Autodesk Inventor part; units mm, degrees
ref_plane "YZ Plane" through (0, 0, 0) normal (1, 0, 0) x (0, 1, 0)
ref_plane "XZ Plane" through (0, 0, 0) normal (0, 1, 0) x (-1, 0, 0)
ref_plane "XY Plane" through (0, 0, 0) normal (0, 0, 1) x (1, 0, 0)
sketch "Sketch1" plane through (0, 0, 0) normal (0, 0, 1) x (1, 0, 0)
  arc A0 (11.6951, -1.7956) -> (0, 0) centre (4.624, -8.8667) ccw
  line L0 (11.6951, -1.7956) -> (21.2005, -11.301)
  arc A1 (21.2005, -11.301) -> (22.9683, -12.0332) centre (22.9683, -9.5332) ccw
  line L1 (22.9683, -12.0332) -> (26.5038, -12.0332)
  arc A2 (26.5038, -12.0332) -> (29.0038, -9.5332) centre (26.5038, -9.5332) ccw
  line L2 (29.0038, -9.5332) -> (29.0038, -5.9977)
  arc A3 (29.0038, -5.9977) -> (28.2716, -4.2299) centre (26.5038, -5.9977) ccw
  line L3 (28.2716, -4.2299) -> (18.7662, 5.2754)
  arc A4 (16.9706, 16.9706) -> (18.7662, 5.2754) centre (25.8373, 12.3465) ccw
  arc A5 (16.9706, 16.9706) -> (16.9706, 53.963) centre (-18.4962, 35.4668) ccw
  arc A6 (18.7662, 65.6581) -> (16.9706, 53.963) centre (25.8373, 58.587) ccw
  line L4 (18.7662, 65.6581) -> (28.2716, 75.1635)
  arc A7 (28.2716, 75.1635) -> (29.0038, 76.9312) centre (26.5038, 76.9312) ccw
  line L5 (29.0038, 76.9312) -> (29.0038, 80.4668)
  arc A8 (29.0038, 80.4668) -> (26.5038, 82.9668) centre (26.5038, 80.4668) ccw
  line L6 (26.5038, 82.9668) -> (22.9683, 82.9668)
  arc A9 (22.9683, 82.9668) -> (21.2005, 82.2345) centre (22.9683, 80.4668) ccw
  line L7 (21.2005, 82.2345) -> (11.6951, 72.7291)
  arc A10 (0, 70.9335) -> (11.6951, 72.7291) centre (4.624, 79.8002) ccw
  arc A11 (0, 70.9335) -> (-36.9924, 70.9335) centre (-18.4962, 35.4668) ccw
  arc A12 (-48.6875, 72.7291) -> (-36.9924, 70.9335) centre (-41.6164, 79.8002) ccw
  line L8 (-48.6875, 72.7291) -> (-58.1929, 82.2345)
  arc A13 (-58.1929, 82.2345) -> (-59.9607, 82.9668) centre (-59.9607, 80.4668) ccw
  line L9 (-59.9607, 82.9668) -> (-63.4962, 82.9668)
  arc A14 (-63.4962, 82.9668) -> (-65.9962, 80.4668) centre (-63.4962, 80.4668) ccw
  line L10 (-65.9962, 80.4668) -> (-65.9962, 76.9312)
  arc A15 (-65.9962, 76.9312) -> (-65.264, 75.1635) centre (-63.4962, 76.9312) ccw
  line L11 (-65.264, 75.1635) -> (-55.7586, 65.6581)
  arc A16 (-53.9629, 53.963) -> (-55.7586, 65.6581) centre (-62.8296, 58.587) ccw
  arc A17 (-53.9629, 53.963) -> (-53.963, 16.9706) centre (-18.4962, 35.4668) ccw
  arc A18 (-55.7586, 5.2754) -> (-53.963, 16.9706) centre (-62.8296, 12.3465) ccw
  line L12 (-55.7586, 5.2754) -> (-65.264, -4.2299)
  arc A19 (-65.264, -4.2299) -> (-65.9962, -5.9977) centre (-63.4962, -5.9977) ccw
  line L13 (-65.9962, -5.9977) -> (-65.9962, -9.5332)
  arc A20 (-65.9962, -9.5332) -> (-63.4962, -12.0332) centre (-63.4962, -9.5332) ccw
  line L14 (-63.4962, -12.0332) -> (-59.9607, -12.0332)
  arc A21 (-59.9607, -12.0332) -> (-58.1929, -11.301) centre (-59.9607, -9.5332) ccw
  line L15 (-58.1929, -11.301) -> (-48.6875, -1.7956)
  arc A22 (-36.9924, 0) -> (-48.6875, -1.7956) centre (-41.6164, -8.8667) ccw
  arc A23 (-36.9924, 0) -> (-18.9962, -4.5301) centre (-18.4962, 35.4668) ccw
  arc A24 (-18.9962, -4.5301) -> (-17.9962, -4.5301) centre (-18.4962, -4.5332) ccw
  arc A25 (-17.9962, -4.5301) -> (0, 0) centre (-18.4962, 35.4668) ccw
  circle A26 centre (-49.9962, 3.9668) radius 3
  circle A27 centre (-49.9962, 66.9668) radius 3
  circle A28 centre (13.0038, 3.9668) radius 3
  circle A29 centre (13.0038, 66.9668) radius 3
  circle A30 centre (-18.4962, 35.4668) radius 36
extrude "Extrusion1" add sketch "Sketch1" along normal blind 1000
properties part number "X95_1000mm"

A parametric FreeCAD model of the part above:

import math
import FreeCAD as App
import Part
import Sketcher

V = App.Vector

doc = App.newDocument("Part")
body = doc.addObject("PartDesign::Body", "Body")

# Sketch on XY plane
sketch1 = body.newObject("Sketcher::SketchObject", "Sketch")
sketch1.AttachmentSupport = (doc.getObject("XY_Plane"), [""])
sketch1.MapMode = "FlatFace"
sketch1.addGeometry([
    Part.ArcOfCircle(Part.Circle(V(4.624, -8.8667, 0), V(0, 0, 1), 10.000046), math.radians(45), math.radians(117.542122)),  # 0
    Part.LineSegment(V(11.6951, -1.7956, 0), V(21.2005, -11.301, 0)),  # 1
    Part.ArcOfCircle(Part.Circle(V(22.9683, -9.5332, 0), V(0, 0, 1), 2.500047), math.radians(-135), math.radians(-90)),  # 2
    Part.LineSegment(V(22.9683, -12.0332, 0), V(26.5038, -12.0332, 0)),  # 3
    Part.ArcOfCircle(Part.Circle(V(26.5038, -9.5332, 0), V(0, 0, 1), 2.5), math.radians(-90), math.radians(0)),  # 4
    Part.LineSegment(V(29.0038, -9.5332, 0), V(29.0038, -5.9977, 0)),  # 5
    Part.ArcOfCircle(Part.Circle(V(26.5038, -5.9977, 0), V(0, 0, 1), 2.5), math.radians(0), math.radians(45)),  # 6
    Part.LineSegment(V(28.2716, -4.2299, 0), V(18.7662, 5.2754, 0)),  # 7
    Part.ArcOfCircle(Part.Circle(V(25.8373, 12.3465, 0), V(0, 0, 1), 10.000033), math.radians(152.45737), math.radians(225)),  # 8
    Part.ArcOfCircle(Part.Circle(V(-18.4962, 35.4668, 0), V(0, 0, 1), 40.000041), math.radians(-27.542376), math.radians(27.542376)),  # 9
    Part.ArcOfCircle(Part.Circle(V(25.8373, 58.587, 0), V(0, 0, 1), 10.000046), math.radians(135), math.radians(207.542122)),  # 10
    Part.LineSegment(V(18.7662, 65.6581, 0), V(28.2716, 75.1635, 0)),  # 11
    Part.ArcOfCircle(Part.Circle(V(26.5038, 76.9312, 0), V(0, 0, 1), 2.499976), math.radians(-44.998379), math.radians(0)),  # 12
    Part.LineSegment(V(29.0038, 76.9312, 0), V(29.0038, 80.4668, 0)),  # 13
    Part.ArcOfCircle(Part.Circle(V(26.5038, 80.4668, 0), V(0, 0, 1), 2.5), math.radians(0), math.radians(90)),  # 14
    Part.LineSegment(V(26.5038, 82.9668, 0), V(22.9683, 82.9668, 0)),  # 15
    Part.ArcOfCircle(Part.Circle(V(22.9683, 80.4668, 0), V(0, 0, 1), 2.5), math.radians(90), math.radians(135.001621)),  # 16
    Part.LineSegment(V(21.2005, 82.2345, 0), V(11.6951, 72.7291, 0)),  # 17
    Part.ArcOfCircle(Part.Circle(V(4.624, 79.8002, 0), V(0, 0, 1), 9.999987), math.radians(-117.542122), math.radians(-45)),  # 18
    Part.ArcOfCircle(Part.Circle(V(-18.4962, 35.4668, 0), V(0, 0, 1), 39.999953), math.radians(62.457558), math.radians(117.542442)),  # 19
    Part.ArcOfCircle(Part.Circle(V(-41.6164, 79.8002, 0), V(0, 0, 1), 10.000046), math.radians(-135), math.radians(-62.457878)),  # 20
    Part.LineSegment(V(-48.6875, 72.7291, 0), V(-58.1929, 82.2345, 0)),  # 21
    Part.ArcOfCircle(Part.Circle(V(-59.9607, 80.4668, 0), V(0, 0, 1), 2.499976), math.radians(44.998379), math.radians(90)),  # 22
    Part.LineSegment(V(-59.9607, 82.9668, 0), V(-63.4962, 82.9668, 0)),  # 23
    Part.ArcOfCircle(Part.Circle(V(-63.4962, 80.4668, 0), V(0, 0, 1), 2.5), math.radians(90), math.radians(180)),  # 24
    Part.LineSegment(V(-65.9962, 80.4668, 0), V(-65.9962, 76.9312, 0)),  # 25
    Part.ArcOfCircle(Part.Circle(V(-63.4962, 76.9312, 0), V(0, 0, 1), 2.5), math.radians(180), math.radians(224.998379)),  # 26
    Part.LineSegment(V(-65.264, 75.1635, 0), V(-55.7586, 65.6581, 0)),  # 27
    Part.ArcOfCircle(Part.Circle(V(-62.8296, 58.587, 0), V(0, 0, 1), 9.999987), math.radians(-27.542122), math.radians(45.000405)),  # 28
    Part.ArcOfCircle(Part.Circle(V(-18.4962, 35.4668, 0), V(0, 0, 1), 40.000041), math.radians(152.457558), math.radians(207.542376)),  # 29
    Part.ArcOfCircle(Part.Circle(V(-62.8296, 12.3465, 0), V(0, 0, 1), 9.999975), math.radians(-45.000405), math.radians(27.542895)),  # 30
    Part.LineSegment(V(-55.7586, 5.2754, 0), V(-65.264, -4.2299, 0)),  # 31
    Part.ArcOfCircle(Part.Circle(V(-63.4962, -5.9977, 0), V(0, 0, 1), 2.500047), math.radians(135), math.radians(180)),  # 32
    Part.LineSegment(V(-65.9962, -5.9977, 0), V(-65.9962, -9.5332, 0)),  # 33
    Part.ArcOfCircle(Part.Circle(V(-63.4962, -9.5332, 0), V(0, 0, 1), 2.5), math.radians(180), math.radians(270)),  # 34
    Part.LineSegment(V(-63.4962, -12.0332, 0), V(-59.9607, -12.0332, 0)),  # 35
    Part.ArcOfCircle(Part.Circle(V(-59.9607, -9.5332, 0), V(0, 0, 1), 2.5), math.radians(-90), math.radians(-45)),  # 36
    Part.LineSegment(V(-58.1929, -11.301, 0), V(-48.6875, -1.7956, 0)),  # 37
    Part.ArcOfCircle(Part.Circle(V(-41.6164, -8.8667, 0), V(0, 0, 1), 9.999987), math.radians(62.457878), math.radians(135)),  # 38
    Part.ArcOfCircle(Part.Circle(V(-18.4962, 35.4668, 0), V(0, 0, 1), 39.999953), math.radians(-117.542376), math.radians(-90.716215)),  # 39
    Part.ArcOfCircle(Part.Circle(V(-18.4962, -4.5332, 0), V(0, 0, 1), 0.50001), math.radians(179.644771), math.radians(360.355229)),  # 40
    Part.ArcOfCircle(Part.Circle(V(-18.4962, 35.4668, 0), V(0, 0, 1), 40.000041), math.radians(-89.283785), math.radians(-62.457624)),  # 41
    Part.Circle(V(-49.9962, 3.9668, 0), V(0, 0, 1), 3),  # 42
    Part.Circle(V(13.0038, 3.9668, 0), V(0, 0, 1), 3),  # 43
    Part.Circle(V(-49.9962, 66.9668, 0), V(0, 0, 1), 3),  # 44
    Part.Circle(V(-18.4962, 35.4668, 0), V(0, 0, 1), 36),  # 45
    Part.Circle(V(13.0038, 66.9668, 0), V(0, 0, 1), 3),  # 46
], False)
sketch1.addConstraint([
    Sketcher.Constraint("Tangent", 0, 1, 1, 1),
    Sketcher.Constraint("Tangent", 1, 2, 2, 1),
    Sketcher.Constraint("Tangent", 2, 2, 3, 1),
    Sketcher.Constraint("Tangent", 3, 2, 4, 1),
    Sketcher.Constraint("Tangent", 4, 2, 5, 1),
    Sketcher.Constraint("Tangent", 5, 2, 6, 1),
    Sketcher.Constraint("Tangent", 6, 2, 7, 1),
    Sketcher.Constraint("Tangent", 7, 2, 8, 2),
    Sketcher.Constraint("Tangent", 8, 1, 9, 1),
    Sketcher.Constraint("Tangent", 9, 2, 10, 2),
    Sketcher.Constraint("Tangent", 10, 1, 11, 1),
    Sketcher.Constraint("Tangent", 11, 2, 12, 1),
    Sketcher.Constraint("Tangent", 12, 2, 13, 1),
    Sketcher.Constraint("Tangent", 13, 2, 14, 1),
    Sketcher.Constraint("Tangent", 14, 2, 15, 1),
    Sketcher.Constraint("Tangent", 15, 2, 16, 1),
    Sketcher.Constraint("Tangent", 16, 2, 17, 1),
    Sketcher.Constraint("Tangent", 17, 2, 18, 2),
    Sketcher.Constraint("Tangent", 18, 1, 19, 1),
    Sketcher.Constraint("Tangent", 19, 2, 20, 2),
    Sketcher.Constraint("Tangent", 20, 1, 21, 1),
    Sketcher.Constraint("Tangent", 21, 2, 22, 1),
    Sketcher.Constraint("Tangent", 22, 2, 23, 1),
    Sketcher.Constraint("Tangent", 23, 2, 24, 1),
    Sketcher.Constraint("Tangent", 24, 2, 25, 1),
    Sketcher.Constraint("Tangent", 25, 2, 26, 1),
    Sketcher.Constraint("Tangent", 26, 2, 27, 1),
    Sketcher.Constraint("Tangent", 27, 2, 28, 2),
    Sketcher.Constraint("Tangent", 28, 1, 29, 1),
    Sketcher.Constraint("Tangent", 29, 2, 30, 2),
    Sketcher.Constraint("Tangent", 30, 1, 31, 1),
    Sketcher.Constraint("Tangent", 31, 2, 32, 1),
    Sketcher.Constraint("Tangent", 32, 2, 33, 1),
    Sketcher.Constraint("Tangent", 33, 2, 34, 1),
    Sketcher.Constraint("Tangent", 34, 2, 35, 1),
    Sketcher.Constraint("Tangent", 35, 2, 36, 1),
    Sketcher.Constraint("Tangent", 36, 2, 37, 1),
    Sketcher.Constraint("Tangent", 37, 2, 38, 2),
    Sketcher.Constraint("Tangent", 38, 1, 39, 1),
    Sketcher.Constraint("Coincident", 39, 2, 40, 1),
    Sketcher.Constraint("Coincident", 40, 2, 41, 1),
    Sketcher.Constraint("Tangent", 41, 2, 0, 2),
    Sketcher.Constraint("Horizontal", 3),
    Sketcher.Constraint("Vertical", 5),
    Sketcher.Constraint("Vertical", 13),
    Sketcher.Constraint("Horizontal", 15),
    Sketcher.Constraint("Horizontal", 23),
    Sketcher.Constraint("Vertical", 25),
    Sketcher.Constraint("Vertical", 33),
    Sketcher.Constraint("Horizontal", 35),
    Sketcher.Constraint("Coincident", 41, 2, -1, 1),
    Sketcher.Constraint("Coincident", 19, 3, 9, 3),
    Sketcher.Constraint("Coincident", 29, 3, 9, 3),
    Sketcher.Constraint("Coincident", 39, 3, 9, 3),
    Sketcher.Constraint("Coincident", 41, 3, 9, 3),
    Sketcher.Constraint("Coincident", 45, 3, 9, 3),
    Sketcher.Constraint("Equal", 2, 4),
    Sketcher.Constraint("Equal", 4, 6),
    Sketcher.Constraint("Equal", 0, 8),
    Sketcher.Constraint("Equal", 8, 10),
    Sketcher.Constraint("Equal", 6, 12),
    Sketcher.Constraint("Equal", 12, 14),
    Sketcher.Constraint("Equal", 14, 16),
    Sketcher.Constraint("Equal", 10, 18),
    Sketcher.Constraint("Equal", 9, 19),
    Sketcher.Constraint("Equal", 18, 20),
    Sketcher.Constraint("Equal", 16, 22),
    Sketcher.Constraint("Equal", 22, 24),
    Sketcher.Constraint("Equal", 24, 26),
    Sketcher.Constraint("Equal", 20, 28),
    Sketcher.Constraint("Equal", 19, 29),
    Sketcher.Constraint("Equal", 28, 30),
    Sketcher.Constraint("Equal", 26, 32),
    Sketcher.Constraint("Equal", 32, 34),
    Sketcher.Constraint("Equal", 34, 36),
    Sketcher.Constraint("Equal", 30, 38),
    Sketcher.Constraint("Equal", 29, 39),
    Sketcher.Constraint("Equal", 39, 41),
    Sketcher.Constraint("Equal", 42, 43),
    Sketcher.Constraint("Equal", 43, 44),
    Sketcher.Constraint("Equal", 44, 46),
    Sketcher.Constraint("PointOnObject", 18, 1, -2),
    Sketcher.Constraint("PointOnObject", 38, 1, -1),
    Sketcher.Constraint("Parallel", 1, 7),
    Sketcher.Constraint("Perpendicular", 7, 11),
    Sketcher.Constraint("Parallel", 11, 17),
    Sketcher.Constraint("Perpendicular", 17, 21),
    Sketcher.Constraint("Parallel", 21, 27),
    Sketcher.Constraint("Perpendicular", 27, 31),
    Sketcher.Constraint("Parallel", 31, 37),
    Sketcher.Constraint("Horizontal", 18, 3, 20, 3),
    Sketcher.Constraint("Horizontal", 16, 3, 22, 3),
    Sketcher.Constraint("Horizontal", 12, 3, 26, 3),
    Sketcher.Constraint("Horizontal", 10, 3, 28, 3),
    Sketcher.Constraint("Horizontal", 8, 3, 30, 3),
    Sketcher.Constraint("Horizontal", 6, 3, 32, 3),
    Sketcher.Constraint("Horizontal", 4, 3, 34, 3),
    Sketcher.Constraint("Horizontal", 42, 3, 43, 3),
    Sketcher.Constraint("Horizontal", 44, 3, 46, 3),
    Sketcher.Constraint("Horizontal", 17, 2, 20, 1),
    Sketcher.Constraint("Horizontal", 39, 2, 40, 2),
    Sketcher.Constraint("Vertical", 8, 3, 10, 3),
    Sketcher.Constraint("Vertical", 6, 3, 12, 3),
    Sketcher.Constraint("Vertical", 2, 3, 16, 3),
    Sketcher.Constraint("Vertical", 42, 3, 44, 3),
    Sketcher.Constraint("Vertical", 43, 3, 46, 3),
    Sketcher.Constraint("Equal", 35, 5),
    Sketcher.Constraint("Equal", 1, 7),
    Sketcher.Constraint("Diameter", 42, 6.0),
    Sketcher.Constraint("Diameter", 45, 72.0),
    Sketcher.Constraint("Radius", 0, 10.0),
    Sketcher.Constraint("Radius", 9, 40.0),
    Sketcher.Constraint("Radius", 2, 2.5),
    Sketcher.Constraint("Radius", 40, 0.5),
    Sketcher.Constraint("DistanceY", 6, 2, -1, 1, 4.23),
    Sketcher.Constraint("DistanceY", 39, 2, -1, 1, 4.53),
    Sketcher.Constraint("DistanceY", 40, 3, -1, 1, 4.5332),
    Sketcher.Constraint("DistanceX", 42, 3, -1, 1, 49.9962),
    Sketcher.Constraint("DistanceY", -1, 1, 42, 3, 3.9668),
    Sketcher.Constraint("DistanceX", -1, 1, 43, 3, 13.0038),
    Sketcher.Constraint("DistanceY", -1, 1, 44, 3, 66.9668),
])
pad1 = body.newObject("PartDesign::Pad", "Pad")
pad1.Profile = sketch1
pad1.Length = 1000

doc.recompute()
